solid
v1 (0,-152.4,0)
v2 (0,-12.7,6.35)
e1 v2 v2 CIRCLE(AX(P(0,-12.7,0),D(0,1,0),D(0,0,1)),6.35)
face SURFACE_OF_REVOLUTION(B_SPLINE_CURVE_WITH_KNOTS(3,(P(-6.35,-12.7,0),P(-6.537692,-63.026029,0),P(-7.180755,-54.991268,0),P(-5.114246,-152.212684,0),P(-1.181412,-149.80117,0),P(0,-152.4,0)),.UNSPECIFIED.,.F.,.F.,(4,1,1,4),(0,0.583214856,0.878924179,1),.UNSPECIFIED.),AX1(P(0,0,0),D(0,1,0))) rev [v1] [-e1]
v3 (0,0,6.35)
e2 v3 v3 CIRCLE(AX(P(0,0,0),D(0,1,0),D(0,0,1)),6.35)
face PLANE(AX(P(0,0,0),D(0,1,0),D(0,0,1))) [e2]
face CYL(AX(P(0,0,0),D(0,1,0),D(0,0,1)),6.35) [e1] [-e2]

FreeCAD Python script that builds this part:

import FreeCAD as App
import Part
import Sketcher

V = App.Vector

doc = App.newDocument("Part")
body = doc.addObject("PartDesign::Body", "Body")

# Sketch on XY plane
sketch1 = body.newObject("Sketcher::SketchObject", "Sketch")
sketch1.AttachmentSupport = (doc.getObject("XY_Plane"), [""])
sketch1.MapMode = "FlatFace"
sketch1.addGeometry(Part.LineSegment(V(0, -152.4, 0), V(0, 0, 0)), False)
sketch1.addGeometry(Part.LineSegment(V(0, 0, 0), V(-6.35, 0, 0)), False)
sketch1.addGeometry(Part.LineSegment(V(-6.35, 0, 0), V(-6.35, -12.7, 0)), False)
sketch1.addGeometry(Part.BSplineCurve([V(0, -152.4, 0), V(-1.181412, -149.80117, 0), V(-5.114246, -152.212684, 0), V(-7.180755, -54.991268, 0), V(-6.537692, -63.026029, 0), V(-6.35, -12.7, 0)], [4, 1, 1, 4], [0, 0.121075821, 0.416785144, 1], False, 3, [1, 1, 1, 1, 1, 1], False), False)
sketch1.addConstraint(Sketcher.Constraint("Block", 3))
sketch1.addConstraint(Sketcher.Constraint("Coincident", 0, 2, 1, 1))
sketch1.addConstraint(Sketcher.Constraint("Coincident", 1, 2, 2, 1))
sketch1.addConstraint(Sketcher.Constraint("Coincident", 2, 2, 3, 2))
sketch1.addConstraint(Sketcher.Constraint("Coincident", 3, 1, 0, 1))
sketch1.addConstraint(Sketcher.Constraint("Vertical", 0))
sketch1.addConstraint(Sketcher.Constraint("Horizontal", 1))
sketch1.addConstraint(Sketcher.Constraint("Vertical", 2))
sketch1.addConstraint(Sketcher.Constraint("PointOnObject", 1, 2, -1))
revolution = body.newObject("PartDesign::Revolution", "Revolution")
revolution.Profile = sketch1
revolution.ReferenceAxis = (sketch1, ["V_Axis"])
revolution.Angle = 360

doc.recompute()
